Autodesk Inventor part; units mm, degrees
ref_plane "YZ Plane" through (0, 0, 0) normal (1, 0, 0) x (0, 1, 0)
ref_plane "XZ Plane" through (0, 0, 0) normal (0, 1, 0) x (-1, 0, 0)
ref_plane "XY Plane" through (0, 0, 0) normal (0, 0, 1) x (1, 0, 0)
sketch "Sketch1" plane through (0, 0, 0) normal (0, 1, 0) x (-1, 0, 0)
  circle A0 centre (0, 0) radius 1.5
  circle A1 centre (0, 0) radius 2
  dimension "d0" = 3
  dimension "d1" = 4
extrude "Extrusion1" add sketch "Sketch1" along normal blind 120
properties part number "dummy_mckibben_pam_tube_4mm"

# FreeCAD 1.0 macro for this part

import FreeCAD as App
import Part
import Sketcher

V = App.Vector

doc = App.newDocument("Part")
body = doc.addObject("PartDesign::Body", "Body")

# Sketch on XZ plane
sketch1 = doc.addObject("Sketcher::SketchObject", "Sketch")
body.addObject(sketch1)
sketch1.AttachmentSupport = (doc.XZ_Plane, [""])
sketch1.MapMode = "FlatFace"
sketch1.addGeometry(Part.Circle(V(0, 0, 0), V(0, 0, 1), 2), False)
sketch1.addGeometry(Part.Circle(V(0, 0, 0), V(0, 0, 1), 1.5), False)
sketch1.addConstraint(Sketcher.Constraint("Coincident", 0, 3, -1, 1))
sketch1.addConstraint(Sketcher.Constraint("Coincident", 1, 3, -1, 1))
sketch1.addConstraint(Sketcher.Constraint("Diameter", 0, 4.0))
sketch1.addConstraint(Sketcher.Constraint("Diameter", 1, 3.0))
pad1 = doc.addObject("PartDesign::Pad", "Pad")
body.addObject(pad1)
pad1.Profile = sketch1
pad1.Length = 120
pad1.Reversed = True

doc.recompute()
